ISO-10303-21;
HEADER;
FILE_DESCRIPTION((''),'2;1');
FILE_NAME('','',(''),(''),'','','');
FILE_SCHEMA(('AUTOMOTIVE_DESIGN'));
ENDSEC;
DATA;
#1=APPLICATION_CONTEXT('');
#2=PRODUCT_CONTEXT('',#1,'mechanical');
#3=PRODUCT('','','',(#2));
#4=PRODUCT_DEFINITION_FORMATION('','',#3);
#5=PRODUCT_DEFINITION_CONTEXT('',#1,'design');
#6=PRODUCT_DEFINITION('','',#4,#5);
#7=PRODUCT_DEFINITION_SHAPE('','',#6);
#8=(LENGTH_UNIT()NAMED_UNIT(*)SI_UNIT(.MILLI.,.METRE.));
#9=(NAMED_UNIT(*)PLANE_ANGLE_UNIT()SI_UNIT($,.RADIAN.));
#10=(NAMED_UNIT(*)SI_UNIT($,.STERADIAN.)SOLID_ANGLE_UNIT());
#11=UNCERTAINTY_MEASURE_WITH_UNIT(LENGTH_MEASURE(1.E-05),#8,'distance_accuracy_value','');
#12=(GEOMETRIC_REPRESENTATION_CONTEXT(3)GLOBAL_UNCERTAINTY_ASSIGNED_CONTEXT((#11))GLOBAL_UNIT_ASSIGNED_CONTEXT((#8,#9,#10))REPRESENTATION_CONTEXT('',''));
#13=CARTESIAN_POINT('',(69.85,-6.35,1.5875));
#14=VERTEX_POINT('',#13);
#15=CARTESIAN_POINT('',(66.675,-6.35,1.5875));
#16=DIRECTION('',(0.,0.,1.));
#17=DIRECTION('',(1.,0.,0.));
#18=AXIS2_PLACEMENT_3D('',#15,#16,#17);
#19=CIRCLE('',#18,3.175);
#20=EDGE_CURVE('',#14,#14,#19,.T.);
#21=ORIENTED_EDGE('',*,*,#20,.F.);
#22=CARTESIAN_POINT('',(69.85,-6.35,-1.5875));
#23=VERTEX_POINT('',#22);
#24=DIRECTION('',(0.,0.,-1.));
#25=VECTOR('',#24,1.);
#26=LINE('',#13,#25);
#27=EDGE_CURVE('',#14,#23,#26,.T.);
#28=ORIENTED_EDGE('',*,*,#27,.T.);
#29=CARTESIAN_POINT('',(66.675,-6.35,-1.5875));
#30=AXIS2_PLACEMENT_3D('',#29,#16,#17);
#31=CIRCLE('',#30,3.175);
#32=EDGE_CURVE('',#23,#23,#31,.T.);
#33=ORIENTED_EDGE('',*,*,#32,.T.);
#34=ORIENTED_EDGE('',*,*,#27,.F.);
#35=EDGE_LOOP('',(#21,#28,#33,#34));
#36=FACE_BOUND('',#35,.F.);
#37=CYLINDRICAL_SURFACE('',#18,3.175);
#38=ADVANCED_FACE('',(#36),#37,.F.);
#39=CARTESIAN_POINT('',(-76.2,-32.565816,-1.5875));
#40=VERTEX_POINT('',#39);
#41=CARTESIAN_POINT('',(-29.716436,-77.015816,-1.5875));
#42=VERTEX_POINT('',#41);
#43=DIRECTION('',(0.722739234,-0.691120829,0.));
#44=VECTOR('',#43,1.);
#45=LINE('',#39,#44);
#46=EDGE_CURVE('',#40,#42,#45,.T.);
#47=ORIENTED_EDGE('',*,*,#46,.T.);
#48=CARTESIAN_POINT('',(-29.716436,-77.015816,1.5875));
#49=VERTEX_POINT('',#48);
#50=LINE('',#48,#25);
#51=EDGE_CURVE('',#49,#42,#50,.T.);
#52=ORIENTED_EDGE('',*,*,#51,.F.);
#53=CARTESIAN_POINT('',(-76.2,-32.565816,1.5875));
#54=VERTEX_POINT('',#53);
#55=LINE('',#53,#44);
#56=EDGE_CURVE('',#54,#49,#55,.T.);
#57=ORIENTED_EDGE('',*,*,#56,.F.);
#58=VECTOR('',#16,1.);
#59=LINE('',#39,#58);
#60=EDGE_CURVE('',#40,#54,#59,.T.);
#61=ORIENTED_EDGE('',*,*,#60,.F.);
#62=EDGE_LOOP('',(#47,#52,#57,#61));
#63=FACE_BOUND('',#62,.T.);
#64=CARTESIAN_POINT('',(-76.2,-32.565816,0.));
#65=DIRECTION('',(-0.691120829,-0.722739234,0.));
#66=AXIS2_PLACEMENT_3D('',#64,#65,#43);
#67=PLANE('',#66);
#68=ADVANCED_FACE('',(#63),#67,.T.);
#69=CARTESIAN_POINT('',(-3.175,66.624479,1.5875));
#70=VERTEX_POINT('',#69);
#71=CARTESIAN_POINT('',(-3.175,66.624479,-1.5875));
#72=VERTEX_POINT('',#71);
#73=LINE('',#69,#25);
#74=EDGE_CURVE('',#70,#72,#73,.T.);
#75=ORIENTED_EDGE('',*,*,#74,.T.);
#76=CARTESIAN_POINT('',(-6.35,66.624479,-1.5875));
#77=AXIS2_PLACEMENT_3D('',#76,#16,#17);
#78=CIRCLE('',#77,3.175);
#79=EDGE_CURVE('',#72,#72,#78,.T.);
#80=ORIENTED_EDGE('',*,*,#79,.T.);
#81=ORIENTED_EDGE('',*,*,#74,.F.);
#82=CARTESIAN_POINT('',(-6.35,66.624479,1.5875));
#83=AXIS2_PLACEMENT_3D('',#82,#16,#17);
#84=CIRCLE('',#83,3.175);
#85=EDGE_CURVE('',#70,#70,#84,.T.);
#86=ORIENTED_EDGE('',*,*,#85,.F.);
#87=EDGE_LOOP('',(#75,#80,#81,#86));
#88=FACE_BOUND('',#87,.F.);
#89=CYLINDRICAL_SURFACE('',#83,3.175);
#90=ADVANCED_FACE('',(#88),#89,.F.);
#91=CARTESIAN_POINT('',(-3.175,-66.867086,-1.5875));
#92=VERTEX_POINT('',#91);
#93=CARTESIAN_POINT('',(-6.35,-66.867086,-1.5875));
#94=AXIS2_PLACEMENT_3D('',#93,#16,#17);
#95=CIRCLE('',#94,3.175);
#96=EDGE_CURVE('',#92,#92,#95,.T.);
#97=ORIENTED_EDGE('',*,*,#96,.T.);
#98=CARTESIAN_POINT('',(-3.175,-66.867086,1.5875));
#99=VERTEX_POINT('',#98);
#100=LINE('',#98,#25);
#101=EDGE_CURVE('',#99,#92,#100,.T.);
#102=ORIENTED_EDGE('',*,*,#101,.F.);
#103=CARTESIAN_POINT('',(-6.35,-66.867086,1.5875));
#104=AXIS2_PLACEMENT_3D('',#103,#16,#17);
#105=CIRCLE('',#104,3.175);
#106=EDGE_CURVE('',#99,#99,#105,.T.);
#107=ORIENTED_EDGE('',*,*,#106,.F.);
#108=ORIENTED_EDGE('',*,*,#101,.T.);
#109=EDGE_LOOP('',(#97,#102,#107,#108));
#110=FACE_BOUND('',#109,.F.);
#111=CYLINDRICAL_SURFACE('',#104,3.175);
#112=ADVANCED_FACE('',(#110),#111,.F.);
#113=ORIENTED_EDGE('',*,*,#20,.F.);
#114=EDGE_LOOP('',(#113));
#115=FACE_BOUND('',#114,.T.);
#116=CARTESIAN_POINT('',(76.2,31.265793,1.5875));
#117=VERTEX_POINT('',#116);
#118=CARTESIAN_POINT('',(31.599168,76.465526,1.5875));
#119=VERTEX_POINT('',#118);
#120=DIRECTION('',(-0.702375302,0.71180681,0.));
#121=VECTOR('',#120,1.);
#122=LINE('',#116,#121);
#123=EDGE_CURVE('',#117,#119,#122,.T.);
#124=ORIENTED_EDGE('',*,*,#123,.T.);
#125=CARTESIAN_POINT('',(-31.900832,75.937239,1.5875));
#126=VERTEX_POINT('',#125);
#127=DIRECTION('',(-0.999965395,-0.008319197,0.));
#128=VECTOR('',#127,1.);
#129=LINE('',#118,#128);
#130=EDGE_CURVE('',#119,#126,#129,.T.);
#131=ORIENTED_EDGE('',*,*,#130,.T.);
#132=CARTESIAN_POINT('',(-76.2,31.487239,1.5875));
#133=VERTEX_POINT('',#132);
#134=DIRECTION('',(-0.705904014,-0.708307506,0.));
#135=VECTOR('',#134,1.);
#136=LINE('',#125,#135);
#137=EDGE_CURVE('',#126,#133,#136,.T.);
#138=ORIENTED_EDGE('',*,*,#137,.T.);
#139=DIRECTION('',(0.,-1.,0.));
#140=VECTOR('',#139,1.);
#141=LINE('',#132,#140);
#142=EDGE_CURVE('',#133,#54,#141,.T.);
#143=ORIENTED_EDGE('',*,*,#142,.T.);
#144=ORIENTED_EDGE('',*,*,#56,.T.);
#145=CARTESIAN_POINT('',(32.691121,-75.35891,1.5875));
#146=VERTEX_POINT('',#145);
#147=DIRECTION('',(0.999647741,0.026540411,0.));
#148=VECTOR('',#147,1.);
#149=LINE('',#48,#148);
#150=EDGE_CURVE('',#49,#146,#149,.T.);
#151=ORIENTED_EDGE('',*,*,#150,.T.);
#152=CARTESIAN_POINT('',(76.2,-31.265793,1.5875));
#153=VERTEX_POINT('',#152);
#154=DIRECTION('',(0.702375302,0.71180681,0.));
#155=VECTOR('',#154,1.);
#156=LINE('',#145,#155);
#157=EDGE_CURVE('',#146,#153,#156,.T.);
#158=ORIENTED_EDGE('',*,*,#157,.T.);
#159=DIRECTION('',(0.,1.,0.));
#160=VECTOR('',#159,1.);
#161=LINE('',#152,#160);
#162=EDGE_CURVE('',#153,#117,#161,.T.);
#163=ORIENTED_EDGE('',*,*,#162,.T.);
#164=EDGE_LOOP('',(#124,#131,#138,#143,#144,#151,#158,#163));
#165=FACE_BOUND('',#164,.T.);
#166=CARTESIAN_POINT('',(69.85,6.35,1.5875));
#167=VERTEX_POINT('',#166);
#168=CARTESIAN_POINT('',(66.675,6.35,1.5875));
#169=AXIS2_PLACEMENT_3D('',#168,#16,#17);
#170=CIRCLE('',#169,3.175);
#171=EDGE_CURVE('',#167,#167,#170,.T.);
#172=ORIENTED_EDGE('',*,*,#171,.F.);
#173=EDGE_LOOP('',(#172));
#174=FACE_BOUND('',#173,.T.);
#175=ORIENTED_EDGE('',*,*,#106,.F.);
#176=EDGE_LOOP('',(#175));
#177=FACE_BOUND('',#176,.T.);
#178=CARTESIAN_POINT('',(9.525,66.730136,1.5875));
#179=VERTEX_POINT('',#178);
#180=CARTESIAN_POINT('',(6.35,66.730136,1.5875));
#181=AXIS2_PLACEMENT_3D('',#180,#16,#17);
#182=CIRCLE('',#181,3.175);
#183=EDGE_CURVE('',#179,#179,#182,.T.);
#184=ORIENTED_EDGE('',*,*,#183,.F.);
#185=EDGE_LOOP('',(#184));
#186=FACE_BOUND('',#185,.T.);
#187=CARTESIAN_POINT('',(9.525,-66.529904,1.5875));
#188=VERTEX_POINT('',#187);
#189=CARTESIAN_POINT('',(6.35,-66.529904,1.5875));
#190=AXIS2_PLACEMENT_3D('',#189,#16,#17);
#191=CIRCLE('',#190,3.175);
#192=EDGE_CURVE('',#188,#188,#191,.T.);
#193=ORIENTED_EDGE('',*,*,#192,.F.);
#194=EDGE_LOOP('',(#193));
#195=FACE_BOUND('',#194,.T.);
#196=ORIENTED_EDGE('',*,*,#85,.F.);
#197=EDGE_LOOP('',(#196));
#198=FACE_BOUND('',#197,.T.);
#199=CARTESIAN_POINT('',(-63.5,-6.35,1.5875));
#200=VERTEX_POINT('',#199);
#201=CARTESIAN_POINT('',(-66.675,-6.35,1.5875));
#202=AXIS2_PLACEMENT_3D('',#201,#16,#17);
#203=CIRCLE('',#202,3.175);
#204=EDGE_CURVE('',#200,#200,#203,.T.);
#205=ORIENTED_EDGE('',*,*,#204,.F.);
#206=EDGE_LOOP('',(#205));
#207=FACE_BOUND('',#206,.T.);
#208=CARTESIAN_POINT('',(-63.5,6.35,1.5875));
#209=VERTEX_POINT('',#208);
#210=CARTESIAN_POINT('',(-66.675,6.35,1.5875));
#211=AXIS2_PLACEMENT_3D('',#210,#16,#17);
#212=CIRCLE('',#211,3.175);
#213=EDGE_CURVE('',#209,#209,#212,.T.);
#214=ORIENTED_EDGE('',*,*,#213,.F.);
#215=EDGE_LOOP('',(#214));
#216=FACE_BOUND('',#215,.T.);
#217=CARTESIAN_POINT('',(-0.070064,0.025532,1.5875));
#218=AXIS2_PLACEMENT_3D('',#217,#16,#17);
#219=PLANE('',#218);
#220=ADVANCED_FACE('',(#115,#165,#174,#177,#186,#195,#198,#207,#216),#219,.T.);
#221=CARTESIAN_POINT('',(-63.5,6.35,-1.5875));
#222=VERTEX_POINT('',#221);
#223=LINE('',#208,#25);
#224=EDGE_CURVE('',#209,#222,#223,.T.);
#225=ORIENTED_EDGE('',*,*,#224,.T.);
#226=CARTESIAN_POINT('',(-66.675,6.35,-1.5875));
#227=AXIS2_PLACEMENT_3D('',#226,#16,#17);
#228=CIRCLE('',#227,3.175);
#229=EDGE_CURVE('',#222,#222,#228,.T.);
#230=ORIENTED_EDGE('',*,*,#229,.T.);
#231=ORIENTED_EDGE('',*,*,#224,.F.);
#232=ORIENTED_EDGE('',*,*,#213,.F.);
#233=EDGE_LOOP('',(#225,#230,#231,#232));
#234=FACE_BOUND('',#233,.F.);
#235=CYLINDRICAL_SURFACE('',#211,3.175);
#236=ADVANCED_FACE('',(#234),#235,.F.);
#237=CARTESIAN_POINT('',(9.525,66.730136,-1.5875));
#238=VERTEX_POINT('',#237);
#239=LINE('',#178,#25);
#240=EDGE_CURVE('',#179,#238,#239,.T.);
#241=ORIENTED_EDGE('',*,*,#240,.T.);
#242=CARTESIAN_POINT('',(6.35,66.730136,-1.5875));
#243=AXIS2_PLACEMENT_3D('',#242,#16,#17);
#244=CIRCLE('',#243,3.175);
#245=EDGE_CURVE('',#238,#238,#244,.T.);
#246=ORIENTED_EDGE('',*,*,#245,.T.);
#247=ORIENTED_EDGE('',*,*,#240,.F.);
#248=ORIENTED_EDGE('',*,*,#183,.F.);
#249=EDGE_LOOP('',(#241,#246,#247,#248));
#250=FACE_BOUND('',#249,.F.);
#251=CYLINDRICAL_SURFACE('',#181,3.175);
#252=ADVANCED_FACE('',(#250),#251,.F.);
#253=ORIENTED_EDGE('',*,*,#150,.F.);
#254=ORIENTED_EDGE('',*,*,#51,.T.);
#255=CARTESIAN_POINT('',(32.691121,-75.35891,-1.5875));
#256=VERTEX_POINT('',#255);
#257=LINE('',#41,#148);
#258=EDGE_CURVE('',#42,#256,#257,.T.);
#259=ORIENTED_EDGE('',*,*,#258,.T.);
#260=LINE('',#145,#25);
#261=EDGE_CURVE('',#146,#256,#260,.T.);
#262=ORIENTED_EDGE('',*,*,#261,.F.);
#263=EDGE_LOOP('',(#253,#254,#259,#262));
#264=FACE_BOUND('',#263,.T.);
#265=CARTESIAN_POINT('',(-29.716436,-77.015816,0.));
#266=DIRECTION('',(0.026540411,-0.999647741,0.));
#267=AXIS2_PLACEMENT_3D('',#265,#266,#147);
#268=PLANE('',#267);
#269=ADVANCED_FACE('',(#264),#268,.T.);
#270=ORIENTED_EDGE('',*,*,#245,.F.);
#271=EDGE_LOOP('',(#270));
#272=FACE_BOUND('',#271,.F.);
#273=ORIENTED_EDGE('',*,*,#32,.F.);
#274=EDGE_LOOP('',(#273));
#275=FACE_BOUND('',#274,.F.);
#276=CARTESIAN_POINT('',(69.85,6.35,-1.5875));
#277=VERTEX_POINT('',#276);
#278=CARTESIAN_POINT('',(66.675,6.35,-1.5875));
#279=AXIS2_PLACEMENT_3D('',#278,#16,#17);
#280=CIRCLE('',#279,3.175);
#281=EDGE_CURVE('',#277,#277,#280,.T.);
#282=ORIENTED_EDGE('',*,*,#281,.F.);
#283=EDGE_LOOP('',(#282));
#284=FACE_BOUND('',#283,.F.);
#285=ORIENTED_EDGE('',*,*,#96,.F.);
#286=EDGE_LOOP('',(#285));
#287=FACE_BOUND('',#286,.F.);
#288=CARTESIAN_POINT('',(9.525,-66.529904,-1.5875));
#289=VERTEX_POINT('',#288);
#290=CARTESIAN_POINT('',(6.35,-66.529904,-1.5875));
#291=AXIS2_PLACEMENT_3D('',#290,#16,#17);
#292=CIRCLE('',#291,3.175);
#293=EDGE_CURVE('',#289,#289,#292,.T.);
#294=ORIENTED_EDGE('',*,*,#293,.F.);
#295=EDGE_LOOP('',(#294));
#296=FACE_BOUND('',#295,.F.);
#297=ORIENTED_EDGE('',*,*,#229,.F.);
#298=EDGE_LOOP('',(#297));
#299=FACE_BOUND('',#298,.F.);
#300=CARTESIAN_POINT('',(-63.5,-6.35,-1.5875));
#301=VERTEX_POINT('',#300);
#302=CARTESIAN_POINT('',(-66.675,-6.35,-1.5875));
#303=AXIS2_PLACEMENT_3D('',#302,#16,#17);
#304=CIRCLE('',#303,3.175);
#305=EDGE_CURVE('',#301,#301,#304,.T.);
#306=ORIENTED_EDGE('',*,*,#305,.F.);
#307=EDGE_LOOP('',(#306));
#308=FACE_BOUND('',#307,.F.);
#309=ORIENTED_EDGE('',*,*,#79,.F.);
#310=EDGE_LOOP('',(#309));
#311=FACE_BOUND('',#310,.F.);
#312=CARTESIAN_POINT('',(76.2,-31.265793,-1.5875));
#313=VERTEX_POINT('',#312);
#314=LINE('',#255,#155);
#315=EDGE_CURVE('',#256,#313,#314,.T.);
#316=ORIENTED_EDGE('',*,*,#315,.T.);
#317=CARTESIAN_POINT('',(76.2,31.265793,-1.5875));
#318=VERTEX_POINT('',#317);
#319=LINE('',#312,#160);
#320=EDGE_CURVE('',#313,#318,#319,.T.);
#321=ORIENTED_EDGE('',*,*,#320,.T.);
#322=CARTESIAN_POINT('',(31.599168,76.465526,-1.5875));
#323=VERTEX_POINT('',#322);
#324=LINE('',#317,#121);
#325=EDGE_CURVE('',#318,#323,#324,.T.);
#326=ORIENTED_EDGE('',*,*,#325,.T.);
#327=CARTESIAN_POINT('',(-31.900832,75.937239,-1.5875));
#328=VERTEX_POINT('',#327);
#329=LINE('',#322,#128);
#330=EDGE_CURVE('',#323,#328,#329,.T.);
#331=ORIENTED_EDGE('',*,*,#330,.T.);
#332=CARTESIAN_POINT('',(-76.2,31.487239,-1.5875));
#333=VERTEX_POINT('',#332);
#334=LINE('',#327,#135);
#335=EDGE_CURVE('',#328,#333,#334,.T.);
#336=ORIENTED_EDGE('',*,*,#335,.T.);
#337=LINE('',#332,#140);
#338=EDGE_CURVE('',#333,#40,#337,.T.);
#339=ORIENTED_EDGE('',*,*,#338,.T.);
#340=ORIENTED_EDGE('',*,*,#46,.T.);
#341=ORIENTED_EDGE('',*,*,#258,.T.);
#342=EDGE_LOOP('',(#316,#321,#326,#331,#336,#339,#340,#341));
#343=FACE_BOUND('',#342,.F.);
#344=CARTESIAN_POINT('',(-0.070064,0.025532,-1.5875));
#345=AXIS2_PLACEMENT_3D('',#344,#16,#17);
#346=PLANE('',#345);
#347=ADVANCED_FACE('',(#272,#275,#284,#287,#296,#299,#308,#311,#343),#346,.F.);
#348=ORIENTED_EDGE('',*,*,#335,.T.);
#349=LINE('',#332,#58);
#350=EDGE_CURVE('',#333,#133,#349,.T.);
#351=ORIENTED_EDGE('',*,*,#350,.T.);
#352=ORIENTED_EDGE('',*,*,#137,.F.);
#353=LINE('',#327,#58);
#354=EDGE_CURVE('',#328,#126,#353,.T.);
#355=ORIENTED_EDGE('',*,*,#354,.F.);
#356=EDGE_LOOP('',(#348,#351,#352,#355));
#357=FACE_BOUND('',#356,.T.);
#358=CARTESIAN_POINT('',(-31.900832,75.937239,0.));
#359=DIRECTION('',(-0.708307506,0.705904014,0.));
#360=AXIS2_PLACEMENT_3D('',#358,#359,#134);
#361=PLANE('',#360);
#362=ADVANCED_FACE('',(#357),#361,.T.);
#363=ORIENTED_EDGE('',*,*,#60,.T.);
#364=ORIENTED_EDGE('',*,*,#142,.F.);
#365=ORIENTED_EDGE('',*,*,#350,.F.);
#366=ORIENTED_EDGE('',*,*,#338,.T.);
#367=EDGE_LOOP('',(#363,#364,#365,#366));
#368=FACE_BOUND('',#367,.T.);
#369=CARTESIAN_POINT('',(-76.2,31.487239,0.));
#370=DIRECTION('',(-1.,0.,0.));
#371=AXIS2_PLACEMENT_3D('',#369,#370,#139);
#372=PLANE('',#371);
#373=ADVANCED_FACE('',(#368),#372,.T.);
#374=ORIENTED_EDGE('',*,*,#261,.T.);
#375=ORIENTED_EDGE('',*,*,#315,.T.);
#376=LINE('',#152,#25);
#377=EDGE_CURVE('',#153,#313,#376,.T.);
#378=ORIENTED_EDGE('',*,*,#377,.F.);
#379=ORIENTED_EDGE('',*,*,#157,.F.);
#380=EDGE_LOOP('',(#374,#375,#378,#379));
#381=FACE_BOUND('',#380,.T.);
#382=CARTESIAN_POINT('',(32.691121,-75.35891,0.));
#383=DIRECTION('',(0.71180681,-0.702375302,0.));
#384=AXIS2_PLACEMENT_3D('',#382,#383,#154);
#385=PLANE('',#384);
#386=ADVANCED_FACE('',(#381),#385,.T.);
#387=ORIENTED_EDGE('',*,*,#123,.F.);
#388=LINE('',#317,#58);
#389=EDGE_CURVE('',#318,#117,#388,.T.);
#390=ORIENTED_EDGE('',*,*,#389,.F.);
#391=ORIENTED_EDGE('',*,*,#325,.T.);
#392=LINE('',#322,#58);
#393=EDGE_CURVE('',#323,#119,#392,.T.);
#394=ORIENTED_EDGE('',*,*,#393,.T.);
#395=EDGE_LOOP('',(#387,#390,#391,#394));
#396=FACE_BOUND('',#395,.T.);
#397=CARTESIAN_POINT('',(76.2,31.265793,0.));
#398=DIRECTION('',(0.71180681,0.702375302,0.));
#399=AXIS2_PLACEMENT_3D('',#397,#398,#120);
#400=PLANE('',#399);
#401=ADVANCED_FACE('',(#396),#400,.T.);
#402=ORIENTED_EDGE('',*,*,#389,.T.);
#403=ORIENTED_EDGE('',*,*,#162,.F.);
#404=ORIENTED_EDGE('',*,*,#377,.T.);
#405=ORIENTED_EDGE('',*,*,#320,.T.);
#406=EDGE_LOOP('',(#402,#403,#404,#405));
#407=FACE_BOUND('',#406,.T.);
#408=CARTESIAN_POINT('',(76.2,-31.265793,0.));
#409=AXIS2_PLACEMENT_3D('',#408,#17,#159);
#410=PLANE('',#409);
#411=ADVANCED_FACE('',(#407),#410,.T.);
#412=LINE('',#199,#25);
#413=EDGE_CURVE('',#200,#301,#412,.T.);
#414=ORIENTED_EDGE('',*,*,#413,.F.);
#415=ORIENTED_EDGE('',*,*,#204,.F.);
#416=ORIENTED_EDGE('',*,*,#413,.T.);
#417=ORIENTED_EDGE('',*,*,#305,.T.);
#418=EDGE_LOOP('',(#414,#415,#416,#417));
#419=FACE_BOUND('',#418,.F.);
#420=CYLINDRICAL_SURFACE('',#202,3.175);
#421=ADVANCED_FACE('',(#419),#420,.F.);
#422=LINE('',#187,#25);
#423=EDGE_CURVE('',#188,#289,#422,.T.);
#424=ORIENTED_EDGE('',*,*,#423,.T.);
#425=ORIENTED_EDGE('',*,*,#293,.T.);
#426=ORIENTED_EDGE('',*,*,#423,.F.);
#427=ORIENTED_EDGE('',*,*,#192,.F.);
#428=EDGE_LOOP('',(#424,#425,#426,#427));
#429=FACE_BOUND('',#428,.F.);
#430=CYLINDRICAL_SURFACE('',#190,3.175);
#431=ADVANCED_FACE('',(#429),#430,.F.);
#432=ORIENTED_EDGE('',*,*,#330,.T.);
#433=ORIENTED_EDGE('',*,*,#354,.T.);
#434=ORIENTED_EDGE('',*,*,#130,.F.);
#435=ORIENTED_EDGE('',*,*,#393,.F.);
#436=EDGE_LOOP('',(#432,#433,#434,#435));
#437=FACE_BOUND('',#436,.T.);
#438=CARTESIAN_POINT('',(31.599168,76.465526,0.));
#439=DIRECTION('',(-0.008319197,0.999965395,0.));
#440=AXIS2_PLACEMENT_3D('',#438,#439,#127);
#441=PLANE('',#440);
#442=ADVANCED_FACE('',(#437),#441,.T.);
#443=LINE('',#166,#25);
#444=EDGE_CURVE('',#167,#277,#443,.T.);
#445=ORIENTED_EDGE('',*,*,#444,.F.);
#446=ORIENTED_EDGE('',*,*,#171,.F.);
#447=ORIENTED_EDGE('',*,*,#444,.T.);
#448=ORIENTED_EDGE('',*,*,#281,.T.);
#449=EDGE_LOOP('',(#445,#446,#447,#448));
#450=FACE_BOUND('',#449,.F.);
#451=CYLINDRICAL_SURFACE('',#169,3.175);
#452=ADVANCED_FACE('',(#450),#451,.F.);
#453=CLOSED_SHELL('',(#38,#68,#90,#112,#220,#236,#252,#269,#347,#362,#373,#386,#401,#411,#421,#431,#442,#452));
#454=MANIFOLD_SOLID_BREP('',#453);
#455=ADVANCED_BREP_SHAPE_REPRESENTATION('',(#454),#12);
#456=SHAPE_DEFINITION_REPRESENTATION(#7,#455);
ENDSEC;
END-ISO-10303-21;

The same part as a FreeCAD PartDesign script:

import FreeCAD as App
import Part
import Sketcher
Q = App.Units.Quantity


def add_polygon(sketch, points):
    """Adds a closed chain of lines whose ends are joined by coincident constraints."""
    first, n = sketch.GeometryCount, len(points)
    for a, b in zip(points, points[1:] + points[:1]):
        sketch.addGeometry(Part.LineSegment(App.Vector(*a, 0), App.Vector(*b, 0)), False)
    for i in range(n):
        sketch.addConstraint(Sketcher.Constraint("Coincident", first + i, 2, first + (i + 1) % n, 1))

doc = App.newDocument("Part")
body = doc.addObject("PartDesign::Body", "Body")

# Sketch on XY plane
sketch1 = doc.addObject("Sketcher::SketchObject", "Sketch")
body.addObject(sketch1)
sketch1.AttachmentSupport = (doc.XY_Plane, [""])
sketch1.MapMode = "FlatFace"
add_polygon(sketch1, [(76.2, -31.265793), (76.2, 31.265793), (31.599168, 76.465526), (-31.900832, 75.937239), (-76.2, 31.487239), (-76.2, -32.565816), (-29.716436, -77.015816), (32.691121, -75.35891)])  # lines 0-7
sketch1.addConstraint(Sketcher.Constraint("Vertical", 0))
sketch1.addConstraint(Sketcher.Constraint("Vertical", 4))
sketch1.addConstraint(Sketcher.Constraint("DistanceX", -1, 1, 0, 2, Q("3 in")))
sketch1.addConstraint(Sketcher.Constraint("DistanceX", 3, 2, -1, 1, Q("3 in")))
sketch1.addConstraint(Sketcher.Constraint("Distance", 1, Q("2.5 in")))
sketch1.addConstraint(Sketcher.Constraint("DistanceX", 2, 2, 1, 2, Q("2.5 in")))
sketch1.addConstraint(Sketcher.Constraint("DistanceY", 3, 2, 2, 2, Q("1.75 in")))
sketch1.addConstraint(Sketcher.Constraint("DistanceY", 5, 2, 4, 2, Q("1.75 in")))
sketch1.addConstraint(Sketcher.Constraint("DistanceX", 2, 2, 5, 2, Q("0.0859998 in")))
sketch1.addConstraint(Sketcher.Constraint("Distance", 3, 62.755229))
sketch1.addConstraint(Sketcher.Constraint("Distance", 6, 62.429549))
sketch1.addConstraint(Sketcher.Constraint("DistanceY", 0, 1, 0, 2, 62.531587))
sketch1.addConstraint(Sketcher.Constraint("DistanceY", 4, 2, 4, 1, 64.053054))
sketch1.addConstraint(Sketcher.Constraint("DistanceY", -1, 1, 2, 2, 75.937239))
sketch1.addConstraint(Sketcher.Constraint("DistanceX", -1, 1, 6, 2, 32.691121))
sketch1.addConstraint(Sketcher.Constraint("DistanceY", 4, 2, 1, 2, 109.031342))
pad1 = doc.addObject("PartDesign::Pad", "Pad")
body.addObject(pad1)
pad1.Profile = sketch1
pad1.Length = Q("0.125 in")
pad1.Midplane = True

# Sketch on XY plane
sketch2 = doc.addObject("Sketcher::SketchObject", "Sketch001")
body.addObject(sketch2)
sketch2.AttachmentSupport = (doc.XY_Plane, [""])
sketch2.MapMode = "FlatFace"
sketch2.AttachmentOffset = App.Placement(App.Vector(0, 0, 0.0625 * 25.4), App.Rotation())
sketch2.addGeometry(Part.Circle(App.Vector(-66.675, 6.35, 0), App.Vector(0, 0, 1), 3.175), False)
sketch2.addGeometry(Part.Circle(App.Vector(-66.675, -6.35, 0), App.Vector(0, 0, 1), 3.175), False)
sketch2.addGeometry(Part.Circle(App.Vector(6.35, -66.529904, 0), App.Vector(0, 0, 1), 3.175), False)
sketch2.addGeometry(Part.Circle(App.Vector(-6.35, -66.867086, 0), App.Vector(0, 0, 1), 3.175), False)
sketch2.addGeometry(Part.Circle(App.Vector(66.675, -6.35, 0), App.Vector(0, 0, 1), 3.175), False)
sketch2.addGeometry(Part.Circle(App.Vector(66.675, 6.35, 0), App.Vector(0, 0, 1), 3.175), False)
sketch2.addGeometry(Part.Circle(App.Vector(6.35, 66.730136, 0), App.Vector(0, 0, 1), 3.175), False)
sketch2.addGeometry(Part.Circle(App.Vector(-6.35, 66.624479, 0), App.Vector(0, 0, 1), 3.175), False)
sketch2.addConstraint(Sketcher.Constraint("Equal", 0, 1))
sketch2.addConstraint(Sketcher.Constraint("Equal", 1, 2))
sketch2.addConstraint(Sketcher.Constraint("Equal", 2, 3))
sketch2.addConstraint(Sketcher.Constraint("Equal", 3, 4))
sketch2.addConstraint(Sketcher.Constraint("Equal", 4, 5))
sketch2.addConstraint(Sketcher.Constraint("Equal", 5, 6))
sketch2.addConstraint(Sketcher.Constraint("Equal", 6, 7))
sketch2.addConstraint(Sketcher.Constraint("Symmetric", 0, 3, 4, 3, -1, 1))
sketch2.addConstraint(Sketcher.Constraint("Symmetric", 1, 3, 5, 3, -1, 1))
sketch2.addConstraint(Sketcher.Constraint("Symmetric", 1, 3, 4, 3, -2))
sketch2.addConstraint(Sketcher.Constraint("Vertical", 2, 3, 6, 3))
sketch2.addConstraint(Sketcher.Constraint("Vertical", 3, 3, 7, 3))
sketch2.addConstraint(Sketcher.Constraint("Diameter", 0, Q("0.25 in")))
sketch2.addConstraint(Sketcher.Constraint("DistanceY", 1, 3, 0, 3, Q("0.5 in")))
sketch2.addConstraint(Sketcher.Constraint("DistanceX", 3, 3, 2, 3, Q("0.5 in")))
sketch2.addConstraint(Sketcher.Constraint("DistanceX", -1, 1, 2, 3, Q("0.25 in")))
sketch2.addConstraint(Sketcher.Constraint("DistanceX", 1, 3, 4, 3, Q("5.25 in")))
sketch2.addConstraint(Sketcher.Constraint("DistanceY", -1, 1, 7, 3, 66.624479))
sketch2.addConstraint(Sketcher.Constraint("DistanceY", 3, 3, 2, 3, 0.337182))
sketch2.addConstraint(Sketcher.Constraint("DistanceY", 2, 3, 6, 3, 133.26004))
sketch2.addConstraint(Sketcher.Constraint("DistanceY", 2, 3, -1, 1, 66.529904))
pocket1 = doc.addObject("PartDesign::Pocket", "Pocket")
body.addObject(pocket1)
pocket1.Profile = sketch2
pocket1.Type = "ThroughAll"

doc.recompute()
